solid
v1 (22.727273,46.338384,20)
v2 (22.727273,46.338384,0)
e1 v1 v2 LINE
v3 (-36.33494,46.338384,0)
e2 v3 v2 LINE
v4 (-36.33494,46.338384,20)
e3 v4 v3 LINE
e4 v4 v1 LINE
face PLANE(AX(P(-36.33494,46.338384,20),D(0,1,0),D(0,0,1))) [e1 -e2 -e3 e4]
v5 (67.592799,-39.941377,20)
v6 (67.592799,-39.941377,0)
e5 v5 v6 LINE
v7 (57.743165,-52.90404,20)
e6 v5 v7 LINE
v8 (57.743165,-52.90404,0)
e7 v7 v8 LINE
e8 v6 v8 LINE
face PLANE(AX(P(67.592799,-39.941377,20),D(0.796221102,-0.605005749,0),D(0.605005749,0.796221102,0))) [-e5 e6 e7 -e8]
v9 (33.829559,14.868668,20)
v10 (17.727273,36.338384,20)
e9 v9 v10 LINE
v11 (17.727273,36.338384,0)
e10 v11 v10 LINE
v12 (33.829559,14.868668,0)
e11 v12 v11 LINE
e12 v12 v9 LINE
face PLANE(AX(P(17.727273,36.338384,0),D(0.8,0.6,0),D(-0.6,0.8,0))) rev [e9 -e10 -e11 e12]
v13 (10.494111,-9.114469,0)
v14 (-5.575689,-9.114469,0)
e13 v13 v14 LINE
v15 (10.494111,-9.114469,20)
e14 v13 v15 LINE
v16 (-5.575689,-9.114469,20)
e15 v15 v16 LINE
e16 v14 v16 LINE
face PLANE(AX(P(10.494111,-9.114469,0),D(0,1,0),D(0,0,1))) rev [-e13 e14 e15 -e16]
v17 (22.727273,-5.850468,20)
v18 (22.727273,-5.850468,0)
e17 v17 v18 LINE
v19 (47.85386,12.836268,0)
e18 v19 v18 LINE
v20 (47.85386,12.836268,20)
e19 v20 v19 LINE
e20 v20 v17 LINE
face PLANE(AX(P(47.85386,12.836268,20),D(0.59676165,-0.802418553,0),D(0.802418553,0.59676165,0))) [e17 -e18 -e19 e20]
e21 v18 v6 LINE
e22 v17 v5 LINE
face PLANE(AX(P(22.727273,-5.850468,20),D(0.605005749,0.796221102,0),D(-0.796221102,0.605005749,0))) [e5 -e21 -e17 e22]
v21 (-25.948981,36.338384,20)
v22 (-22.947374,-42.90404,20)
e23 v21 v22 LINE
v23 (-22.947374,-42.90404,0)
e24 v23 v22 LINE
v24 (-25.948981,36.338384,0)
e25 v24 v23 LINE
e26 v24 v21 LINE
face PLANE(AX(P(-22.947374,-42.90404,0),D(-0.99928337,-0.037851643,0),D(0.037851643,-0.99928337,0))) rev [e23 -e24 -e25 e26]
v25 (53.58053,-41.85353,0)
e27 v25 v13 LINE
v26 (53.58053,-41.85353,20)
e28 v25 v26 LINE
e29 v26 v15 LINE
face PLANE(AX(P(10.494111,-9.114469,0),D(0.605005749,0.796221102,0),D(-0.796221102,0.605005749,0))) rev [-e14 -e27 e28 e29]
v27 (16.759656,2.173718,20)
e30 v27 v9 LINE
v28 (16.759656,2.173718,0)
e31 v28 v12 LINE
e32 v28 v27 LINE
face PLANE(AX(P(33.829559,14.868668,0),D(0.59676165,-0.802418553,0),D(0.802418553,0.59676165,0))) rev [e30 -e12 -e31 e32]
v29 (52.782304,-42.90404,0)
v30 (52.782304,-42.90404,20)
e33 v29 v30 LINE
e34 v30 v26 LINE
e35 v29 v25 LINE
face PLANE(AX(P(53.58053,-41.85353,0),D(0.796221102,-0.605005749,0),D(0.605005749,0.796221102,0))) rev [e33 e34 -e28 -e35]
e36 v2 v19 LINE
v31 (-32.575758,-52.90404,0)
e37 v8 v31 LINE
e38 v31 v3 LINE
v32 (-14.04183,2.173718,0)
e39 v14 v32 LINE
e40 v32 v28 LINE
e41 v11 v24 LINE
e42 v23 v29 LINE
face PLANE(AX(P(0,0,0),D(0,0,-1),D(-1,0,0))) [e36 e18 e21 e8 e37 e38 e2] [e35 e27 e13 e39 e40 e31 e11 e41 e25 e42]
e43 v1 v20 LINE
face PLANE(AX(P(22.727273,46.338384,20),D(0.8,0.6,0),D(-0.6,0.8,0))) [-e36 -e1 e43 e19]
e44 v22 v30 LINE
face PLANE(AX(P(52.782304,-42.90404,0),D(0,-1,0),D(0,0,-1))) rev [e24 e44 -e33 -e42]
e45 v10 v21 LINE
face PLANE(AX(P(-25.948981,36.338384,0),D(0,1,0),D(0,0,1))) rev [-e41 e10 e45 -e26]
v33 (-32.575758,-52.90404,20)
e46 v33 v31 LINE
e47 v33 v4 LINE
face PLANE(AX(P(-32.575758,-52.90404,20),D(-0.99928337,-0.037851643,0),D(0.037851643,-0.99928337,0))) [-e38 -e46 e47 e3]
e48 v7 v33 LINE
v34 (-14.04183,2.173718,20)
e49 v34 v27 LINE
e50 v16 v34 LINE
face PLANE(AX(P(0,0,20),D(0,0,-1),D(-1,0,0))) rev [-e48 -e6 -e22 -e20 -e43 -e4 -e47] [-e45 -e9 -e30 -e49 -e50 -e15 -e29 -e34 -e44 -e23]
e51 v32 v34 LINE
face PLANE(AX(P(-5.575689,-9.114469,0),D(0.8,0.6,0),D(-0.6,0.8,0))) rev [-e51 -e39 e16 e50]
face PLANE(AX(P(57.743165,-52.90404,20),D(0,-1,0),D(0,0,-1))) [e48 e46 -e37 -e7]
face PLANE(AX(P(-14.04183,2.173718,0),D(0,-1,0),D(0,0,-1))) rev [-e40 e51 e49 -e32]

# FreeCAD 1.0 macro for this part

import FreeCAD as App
import Part
import Sketcher


def add_polygon(sketch, points):
    """Adds a closed chain of lines whose ends are joined by coincident constraints."""
    first, n = sketch.GeometryCount, len(points)
    for a, b in zip(points, points[1:] + points[:1]):
        sketch.addGeometry(Part.LineSegment(App.Vector(*a, 0), App.Vector(*b, 0)), False)
    for i in range(n):
        sketch.addConstraint(Sketcher.Constraint("Coincident", first + i, 2, first + (i + 1) % n, 1))

doc = App.newDocument("Part")
body = doc.addObject("PartDesign::Body", "Body")

# Sketch on XY plane
sketch1 = body.newObject("Sketcher::SketchObject", "Sketch")
sketch1.AttachmentSupport = (doc.getObject("XY_Plane"), [""])
sketch1.MapMode = "FlatFace"
add_polygon(sketch1, [(-36, 46), (-33, -53), (58, -53), (68, -40), (23, -6), (48, 13), (23, 46)])  # lines 0-6
sketch1.addConstraint([
    Sketcher.Constraint("Horizontal", 1),
    Sketcher.Constraint("Horizontal", 6),
    Sketcher.Constraint("Perpendicular", 2, 3),
    Sketcher.Constraint("Vertical", 3, 2, 5, 2),
    Sketcher.Constraint("DistanceX", -1, 1, 2, 2, 67.592799),
    Sketcher.Constraint("DistanceX", 6, 2, 4, 2, 84.1888),
    Sketcher.Constraint("Distance", 2, 16.280231),
    Sketcher.Constraint("DistanceX", 1, 1, 1, 2, 90.318923),
    Sketcher.Constraint("DistanceX", 6, 2, 6, 1, 59.062213),
    Sketcher.Constraint("DistanceY", 0, 2, -1, 1, 52.90404),
    Sketcher.Constraint("DistanceX", -1, 1, 4, 2, 47.85386),
    Sketcher.Constraint("DistanceY", -1, 1, 4, 2, 12.836268),
    Sketcher.Constraint("DistanceY", 2, 2, 3, 2, 34.090909),
    Sketcher.Constraint("DistanceY", 3, 2, 5, 2, 52.188851),
])
pad1 = body.newObject("PartDesign::Pad", "Pad")
pad1.Profile = sketch1
pad1.Length = 20

# Sketch on XY plane
sketch2 = body.newObject("Sketcher::SketchObject", "Sketch001")
sketch2.AttachmentSupport = (doc.getObject("XY_Plane"), [""])
sketch2.MapMode = "FlatFace"
sketch2.AttachmentOffset = App.Placement(App.Vector(0, 0, 20), App.Rotation())
add_polygon(sketch2, [(10.494111, -9.114469), (-5.575689, -9.114469), (-14.04183, 2.173718), (16.759656, 2.173718), (33.829559, 14.868668), (17.727273, 36.338384), (-25.948981, 36.338384), (-22.947374, -42.90404), (52.782304, -42.90404), (53.58053, -41.85353)])  # lines 0-9
sketch2.addConstraint([
    Sketcher.Constraint("Horizontal", 0),
    Sketcher.Constraint("Horizontal", 2),
    Sketcher.Constraint("Horizontal", 5),
    Sketcher.Constraint("Horizontal", 7),
    Sketcher.Constraint("Parallel", 1, 4),
    Sketcher.Constraint("Perpendicular", 8, 9),
    Sketcher.Constraint("DistanceX", 0, 2, 0, 1, 16.069801),
    Sketcher.Constraint("DistanceY", 8, 2, 3, 2, 56.722198),
    Sketcher.Constraint("Distance", 8, 1.31937),
    Sketcher.Constraint("DistanceX", 2, 1, 2, 2, 30.801486),
    Sketcher.Constraint("DistanceX", 5, 2, 5, 1, 43.676254),
    Sketcher.Constraint("DistanceX", 7, 1, 7, 2, 75.729678),
    Sketcher.Constraint("DistanceX", 0, 2, -1, 1, 5.575689),
    Sketcher.Constraint("DistanceY", 0, 2, -1, 1, 9.114469),
    Sketcher.Constraint("DistanceX", 1, 2, -1, 1, 14.04183),
    Sketcher.Constraint("DistanceX", -1, 1, 3, 2, 33.829559),
    Sketcher.Constraint("DistanceY", -1, 1, 3, 2, 14.868668),
    Sketcher.Constraint("DistanceX", 5, 2, -1, 1, 25.948981),
    Sketcher.Constraint("DistanceY", 6, 2, -1, 1, 42.90404),
    Sketcher.Constraint("DistanceY", 2, 2, 3, 2, 12.69495),
])
pocket1 = body.newObject("PartDesign::Pocket", "Pocket")
pocket1.Profile = sketch2
pocket1.Type = "ThroughAll"

doc.recompute()
